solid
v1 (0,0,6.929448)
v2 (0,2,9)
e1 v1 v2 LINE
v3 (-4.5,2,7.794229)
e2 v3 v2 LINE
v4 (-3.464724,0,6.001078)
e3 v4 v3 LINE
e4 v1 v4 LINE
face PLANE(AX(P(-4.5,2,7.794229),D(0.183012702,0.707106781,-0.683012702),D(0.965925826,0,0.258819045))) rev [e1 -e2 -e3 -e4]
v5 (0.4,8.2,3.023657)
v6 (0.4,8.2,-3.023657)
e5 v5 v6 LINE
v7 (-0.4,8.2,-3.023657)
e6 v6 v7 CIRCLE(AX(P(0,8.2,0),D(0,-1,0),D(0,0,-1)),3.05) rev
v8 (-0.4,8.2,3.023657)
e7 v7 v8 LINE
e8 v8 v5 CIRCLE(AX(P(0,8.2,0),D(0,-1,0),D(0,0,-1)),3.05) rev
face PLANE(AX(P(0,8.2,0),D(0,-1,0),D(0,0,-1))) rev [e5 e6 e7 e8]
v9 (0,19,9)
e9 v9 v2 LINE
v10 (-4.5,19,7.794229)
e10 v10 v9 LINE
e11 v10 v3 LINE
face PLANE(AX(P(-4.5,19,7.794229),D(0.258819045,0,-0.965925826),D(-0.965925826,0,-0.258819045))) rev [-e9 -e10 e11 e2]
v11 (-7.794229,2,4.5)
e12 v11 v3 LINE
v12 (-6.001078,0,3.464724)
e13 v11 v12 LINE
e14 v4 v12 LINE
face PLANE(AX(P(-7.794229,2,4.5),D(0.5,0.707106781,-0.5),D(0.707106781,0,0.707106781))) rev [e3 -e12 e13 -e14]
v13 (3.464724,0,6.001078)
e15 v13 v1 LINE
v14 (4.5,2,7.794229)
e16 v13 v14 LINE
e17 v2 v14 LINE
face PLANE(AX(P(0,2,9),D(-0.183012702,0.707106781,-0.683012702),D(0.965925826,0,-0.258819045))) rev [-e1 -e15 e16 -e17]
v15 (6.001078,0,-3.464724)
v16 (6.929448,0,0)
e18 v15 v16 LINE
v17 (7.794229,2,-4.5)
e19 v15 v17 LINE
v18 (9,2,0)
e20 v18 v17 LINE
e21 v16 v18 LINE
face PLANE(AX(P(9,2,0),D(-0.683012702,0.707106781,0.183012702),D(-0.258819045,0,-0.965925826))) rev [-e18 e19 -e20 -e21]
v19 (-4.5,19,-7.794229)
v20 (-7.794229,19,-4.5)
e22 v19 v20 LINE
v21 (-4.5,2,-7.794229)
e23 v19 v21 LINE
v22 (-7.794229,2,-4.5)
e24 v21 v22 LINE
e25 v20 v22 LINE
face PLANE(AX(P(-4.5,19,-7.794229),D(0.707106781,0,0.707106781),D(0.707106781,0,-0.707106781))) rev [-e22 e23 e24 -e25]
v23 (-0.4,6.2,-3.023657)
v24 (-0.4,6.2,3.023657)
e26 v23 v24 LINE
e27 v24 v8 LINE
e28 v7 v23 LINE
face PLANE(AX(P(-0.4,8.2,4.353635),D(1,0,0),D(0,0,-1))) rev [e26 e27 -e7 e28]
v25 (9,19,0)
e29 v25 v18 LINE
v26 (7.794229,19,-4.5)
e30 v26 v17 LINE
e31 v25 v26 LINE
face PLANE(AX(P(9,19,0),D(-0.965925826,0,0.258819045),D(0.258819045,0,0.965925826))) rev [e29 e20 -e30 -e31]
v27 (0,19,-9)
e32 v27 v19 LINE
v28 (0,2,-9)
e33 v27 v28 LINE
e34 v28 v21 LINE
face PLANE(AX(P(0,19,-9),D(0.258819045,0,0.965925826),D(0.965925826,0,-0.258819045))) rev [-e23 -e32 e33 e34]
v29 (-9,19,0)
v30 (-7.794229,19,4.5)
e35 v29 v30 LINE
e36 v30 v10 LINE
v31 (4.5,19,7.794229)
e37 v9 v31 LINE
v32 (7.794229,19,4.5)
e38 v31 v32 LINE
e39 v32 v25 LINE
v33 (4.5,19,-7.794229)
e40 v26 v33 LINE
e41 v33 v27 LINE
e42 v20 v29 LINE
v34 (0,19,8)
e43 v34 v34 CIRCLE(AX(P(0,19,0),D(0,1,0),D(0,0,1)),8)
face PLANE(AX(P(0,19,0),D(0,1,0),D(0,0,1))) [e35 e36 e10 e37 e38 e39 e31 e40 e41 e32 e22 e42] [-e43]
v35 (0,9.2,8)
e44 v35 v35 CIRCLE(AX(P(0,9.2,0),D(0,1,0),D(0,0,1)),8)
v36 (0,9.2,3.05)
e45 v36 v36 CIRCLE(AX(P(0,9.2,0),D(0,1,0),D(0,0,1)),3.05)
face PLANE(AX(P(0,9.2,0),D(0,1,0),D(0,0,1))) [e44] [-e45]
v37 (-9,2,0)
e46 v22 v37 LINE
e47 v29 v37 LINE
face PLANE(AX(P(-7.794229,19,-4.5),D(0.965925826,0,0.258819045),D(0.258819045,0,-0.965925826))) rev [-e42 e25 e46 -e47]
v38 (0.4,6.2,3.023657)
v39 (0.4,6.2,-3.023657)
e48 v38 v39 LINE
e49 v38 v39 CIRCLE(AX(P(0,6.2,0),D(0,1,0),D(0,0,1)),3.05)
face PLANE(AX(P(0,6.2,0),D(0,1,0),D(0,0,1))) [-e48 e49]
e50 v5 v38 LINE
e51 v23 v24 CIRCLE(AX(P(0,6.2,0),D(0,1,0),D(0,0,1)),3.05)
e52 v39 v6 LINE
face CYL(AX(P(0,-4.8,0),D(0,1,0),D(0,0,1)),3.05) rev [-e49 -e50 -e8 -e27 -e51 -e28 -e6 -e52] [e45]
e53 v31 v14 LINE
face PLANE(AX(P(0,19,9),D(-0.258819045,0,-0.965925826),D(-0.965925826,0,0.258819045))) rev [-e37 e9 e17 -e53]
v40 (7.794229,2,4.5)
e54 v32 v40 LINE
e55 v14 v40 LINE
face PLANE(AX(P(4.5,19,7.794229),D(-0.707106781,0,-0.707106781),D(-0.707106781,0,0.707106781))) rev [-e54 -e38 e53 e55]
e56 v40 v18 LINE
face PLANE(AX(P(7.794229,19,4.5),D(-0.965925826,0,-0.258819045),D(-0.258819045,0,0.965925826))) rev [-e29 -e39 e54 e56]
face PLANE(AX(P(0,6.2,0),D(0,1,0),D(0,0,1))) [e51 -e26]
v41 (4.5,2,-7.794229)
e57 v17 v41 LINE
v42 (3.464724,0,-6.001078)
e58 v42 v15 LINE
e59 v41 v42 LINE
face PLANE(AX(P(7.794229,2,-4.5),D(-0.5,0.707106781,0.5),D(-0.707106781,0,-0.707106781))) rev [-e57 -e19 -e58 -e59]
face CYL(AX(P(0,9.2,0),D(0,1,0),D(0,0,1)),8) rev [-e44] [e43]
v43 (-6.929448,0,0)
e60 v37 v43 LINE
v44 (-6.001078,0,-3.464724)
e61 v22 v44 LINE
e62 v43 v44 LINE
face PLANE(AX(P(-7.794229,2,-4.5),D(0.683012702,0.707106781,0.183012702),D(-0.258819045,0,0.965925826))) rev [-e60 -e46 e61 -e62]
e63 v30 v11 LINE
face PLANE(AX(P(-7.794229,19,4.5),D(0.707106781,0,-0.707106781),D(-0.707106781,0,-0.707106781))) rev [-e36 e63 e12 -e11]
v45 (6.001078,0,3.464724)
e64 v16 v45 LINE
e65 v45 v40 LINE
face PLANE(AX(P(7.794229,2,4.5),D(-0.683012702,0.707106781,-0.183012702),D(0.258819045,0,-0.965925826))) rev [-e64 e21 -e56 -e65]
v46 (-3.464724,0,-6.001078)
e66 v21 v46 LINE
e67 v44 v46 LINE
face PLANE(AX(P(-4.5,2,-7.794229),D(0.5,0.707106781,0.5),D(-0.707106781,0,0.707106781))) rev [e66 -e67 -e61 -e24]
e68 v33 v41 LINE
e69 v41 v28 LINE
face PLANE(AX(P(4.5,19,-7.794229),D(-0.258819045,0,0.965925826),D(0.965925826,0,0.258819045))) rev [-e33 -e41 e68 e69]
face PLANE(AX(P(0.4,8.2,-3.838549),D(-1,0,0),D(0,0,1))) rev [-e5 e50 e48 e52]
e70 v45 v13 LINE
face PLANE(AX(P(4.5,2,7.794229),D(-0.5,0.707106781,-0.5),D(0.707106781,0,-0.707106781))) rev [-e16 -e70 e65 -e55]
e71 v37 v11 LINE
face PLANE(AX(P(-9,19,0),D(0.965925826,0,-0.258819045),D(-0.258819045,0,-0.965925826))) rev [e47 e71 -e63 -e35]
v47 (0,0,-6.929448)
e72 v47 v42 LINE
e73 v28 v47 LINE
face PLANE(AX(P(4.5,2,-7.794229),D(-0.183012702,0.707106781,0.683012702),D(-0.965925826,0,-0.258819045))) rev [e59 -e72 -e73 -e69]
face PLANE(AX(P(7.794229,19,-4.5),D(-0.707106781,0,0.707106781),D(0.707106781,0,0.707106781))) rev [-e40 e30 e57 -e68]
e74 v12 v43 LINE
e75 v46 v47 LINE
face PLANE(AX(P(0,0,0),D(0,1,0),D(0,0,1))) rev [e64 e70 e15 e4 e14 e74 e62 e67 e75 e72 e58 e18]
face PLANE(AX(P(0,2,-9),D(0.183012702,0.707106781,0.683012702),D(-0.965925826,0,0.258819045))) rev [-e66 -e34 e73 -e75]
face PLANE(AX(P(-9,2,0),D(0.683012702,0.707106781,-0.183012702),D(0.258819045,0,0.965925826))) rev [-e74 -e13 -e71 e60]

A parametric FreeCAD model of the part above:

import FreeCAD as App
import Part
import Sketcher
Q = App.Units.Quantity


def edges_at(feature, points):
    """Names of the edges that pass closest to the given points."""
    edges = feature.Shape.Edges
    near = lambda p: min(range(len(edges)), key=lambda i: edges[i].distToShape(Part.Vertex(*p))[0])
    return sorted({f"Edge{near(p) + 1}" for p in points})


def add_polygon(sketch, points):
    """Adds a closed chain of lines whose ends are joined by coincident constraints."""
    first, n = sketch.GeometryCount, len(points)
    for a, b in zip(points, points[1:] + points[:1]):
        sketch.addGeometry(Part.LineSegment(App.Vector(*a, 0), App.Vector(*b, 0)), False)
    for i in range(n):
        sketch.addConstraint(Sketcher.Constraint("Coincident", first + i, 2, first + (i + 1) % n, 1))

doc = App.newDocument("Part")
body = doc.addObject("PartDesign::Body", "Body")

# Sketch on XZ plane
sketch1 = doc.addObject("Sketcher::SketchObject", "Sketch")
body.addObject(sketch1)
sketch1.AttachmentSupport = (doc.XZ_Plane, [""])
sketch1.MapMode = "FlatFace"
add_polygon(sketch1, [(0, -9), (-4.5, -7.8), (-7.8, -4.5), (-9, 0), (-7.8, 4.5), (-4.5, 7.8), (0, 9), (4.5, 7.8), (7.8, 4.5), (9, 0), (7.8, -4.5), (4.5, -7.8)])  # lines 0-11
sketch1.addConstraint([
    Sketcher.Constraint("Symmetric", 0, 2, 6, 2, -1, 1),
    Sketcher.Constraint("Symmetric", 1, 2, 7, 2, -1, 1),
    Sketcher.Constraint("Symmetric", 2, 2, 8, 2, -1, 1),
    Sketcher.Constraint("Symmetric", 3, 2, 9, 2, -1, 1),
    Sketcher.Constraint("Symmetric", 4, 2, 10, 2, -1, 1),
    Sketcher.Constraint("Symmetric", 5, 2, 11, 2, -1, 1),
    Sketcher.Constraint("Symmetric", 4, 2, 6, 2, -2),
    Sketcher.Constraint("Symmetric", 3, 2, 7, 2, -2),
    Sketcher.Constraint("PointOnObject", 2, 2, -1),
    Sketcher.Constraint("PointOnObject", 5, 2, -2),
    Sketcher.Constraint("Perpendicular", 0, 3),
    Sketcher.Constraint("Perpendicular", 1, 4),
    Sketcher.Constraint("Equal", 0, 1),
    Sketcher.Constraint("Equal", 1, 2),
    Sketcher.Constraint("Angle", 0, Q("165 deg")),
    Sketcher.Constraint("DistanceX", 2, 2, -1, 1, 9.0),
])
pad1 = doc.addObject("PartDesign::Pad", "Pad")
body.addObject(pad1)
pad1.Profile = sketch1
pad1.Length = 19
pad1.Reversed = True

# Sketch on XZ plane
sketch2 = doc.addObject("Sketcher::SketchObject", "Sketch001")
body.addObject(sketch2)
sketch2.AttachmentSupport = (doc.XZ_Plane, [""])
sketch2.MapMode = "FlatFace"
sketch2.AttachmentOffset = App.Placement(App.Vector(0, 0, -19), App.Rotation())
sketch2.addGeometry(Part.Circle(App.Vector(0, 0, 0), App.Vector(0, 0, 1), 8), False)
sketch2.addConstraint([
    Sketcher.Constraint("Coincident", 0, 3, -1, 1),
    Sketcher.Constraint("Diameter", 0, 16.0),
])
pocket1 = doc.addObject("PartDesign::Pocket", "Pocket")
body.addObject(pocket1)
pocket1.Profile = sketch2
pocket1.Length = 9.8
pocket1.Reversed = True

# Sketch on XZ plane
sketch3 = doc.addObject("Sketcher::SketchObject", "Sketch002")
body.addObject(sketch3)
sketch3.AttachmentSupport = (doc.XZ_Plane, [""])
sketch3.MapMode = "FlatFace"
sketch3.AttachmentOffset = App.Placement(App.Vector(0, 0, -9.2), App.Rotation())
sketch3.addGeometry(Part.Circle(App.Vector(0, 0, 0), App.Vector(0, 0, 1), 3), False)
sketch3.addConstraint([
    Sketcher.Constraint("Coincident", 0, 3, -1, 1),
    Sketcher.Constraint("Diameter", 0, 6.1),
])
pocket2 = doc.addObject("PartDesign::Pocket", "Pocket001")
body.addObject(pocket2)
pocket2.Profile = sketch3
pocket2.Length = 14
pocket2.Reversed = True
doc.recompute()

chamfer = doc.addObject("PartDesign::Chamfer", "Chamfer")
body.addObject(chamfer)
chamfer.Base = (pocket2, edges_at(pocket2, [
    (6.147, 0, -6.147),
    (8.397, 0, -2.25),
    (8.397, 0, 2.25),
    (6.147, 0, 6.147),
    (2.25, 0, 8.397),
    (-2.25, 0, 8.397),
    (-6.147, 0, 6.147),
    (-8.397, 0, 2.25),
    (-8.397, 0, -2.25),
    (-6.147, 0, -6.147),
    (-2.25, 0, -8.397),
    (2.25, 0, -8.397),
]))
chamfer.Size = 2

# Sketch on XZ plane
sketch4 = doc.addObject("Sketcher::SketchObject", "Sketch003")
body.addObject(sketch4)
sketch4.AttachmentSupport = (doc.XZ_Plane, [""])
sketch4.MapMode = "FlatFace"
sketch4.AttachmentOffset = App.Placement(App.Vector(0, 0, -1), App.Rotation())
sketch4.addGeometry(Part.Circle(App.Vector(0, 0, 0), App.Vector(0, 0, 1), 3.3), False)
sketch4.addConstraint([
    Sketcher.Constraint("Coincident", 0, 3, -1, 1),
    Sketcher.Constraint("Diameter", 0, 6.6),
])
pad2 = doc.addObject("PartDesign::Pad", "Pad001")
body.addObject(pad2)
pad2.Profile = sketch4
pad2.Length = 3.2
pad2.Reversed = True

# Sketch on XZ plane
sketch5 = doc.addObject("Sketcher::SketchObject", "Sketch004")
body.addObject(sketch5)
sketch5.AttachmentSupport = (doc.XZ_Plane, [""])
sketch5.MapMode = "FlatFace"
sketch5.AttachmentOffset = App.Placement(App.Vector(0, 0, -4.2), App.Rotation())
add_polygon(sketch5, [(-0.4, -3.8), (-0.4, 4.4), (0.4, 4.4), (0.4, -3.8)])  # lines 0-3
sketch5.addConstraint([
    Sketcher.Constraint("Vertical", 0),
    Sketcher.Constraint("Horizontal", 1),
    Sketcher.Constraint("Vertical", 2),
    Sketcher.Constraint("Horizontal", 3),
    Sketcher.Constraint("DistanceX", 1, 1, 1, 2, 0.8),
    Sketcher.Constraint("DistanceX", 0, 2, -1, 1, 0.4),
    Sketcher.Constraint("DistanceY", 0, 1, 0, 2, 8.192184),
    Sketcher.Constraint("DistanceY", 2, 2, -1, 1, 3.838549),
])
pad3 = doc.addObject("PartDesign::Pad", "Pad002")
body.addObject(pad3)
pad3.Profile = sketch5
pad3.Length = 4
pad3.Reversed = True

# Sketch on XZ plane
sketch6 = doc.addObject("Sketcher::SketchObject", "Sketch005")
body.addObject(sketch6)
sketch6.AttachmentSupport = (doc.XZ_Plane, [""])
sketch6.MapMode = "FlatFace"
sketch6.AttachmentOffset = App.Placement(App.Vector(0, 0, -1), App.Rotation())
sketch6.addGeometry(Part.Circle(App.Vector(0, 0, 0), App.Vector(0, 0, 1), 3), False)
sketch6.addConstraint([
    Sketcher.Constraint("Coincident", 0, 3, -1, 1),
    Sketcher.Constraint("Diameter", 0, 6.1),
])
pad4 = doc.addObject("PartDesign::Pad", "Pad003")
body.addObject(pad4)
pad4.Profile = sketch6
pad4.Length = 1

# Sketch on XZ plane
sketch7 = doc.addObject("Sketcher::SketchObject", "Sketch006")
body.addObject(sketch7)
sketch7.AttachmentSupport = (doc.XZ_Plane, [""])
sketch7.MapMode = "FlatFace"
sketch7.AttachmentOffset = App.Placement(App.Vector(0, 0, -4.2), App.Rotation())
sketch7.addGeometry(Part.Circle(App.Vector(0, 0, 0), App.Vector(0, 0, 1), 3), False)
sketch7.addConstraint([
    Sketcher.Constraint("Coincident", 0, 3, -1, 1),
    Sketcher.Constraint("Diameter", 0, 6.1),
])
pad5 = doc.addObject("PartDesign::Pad", "Pad004")
body.addObject(pad5)
pad5.Profile = sketch7
pad5.Length = 2
pad5.Reversed = True

doc.recompute()
